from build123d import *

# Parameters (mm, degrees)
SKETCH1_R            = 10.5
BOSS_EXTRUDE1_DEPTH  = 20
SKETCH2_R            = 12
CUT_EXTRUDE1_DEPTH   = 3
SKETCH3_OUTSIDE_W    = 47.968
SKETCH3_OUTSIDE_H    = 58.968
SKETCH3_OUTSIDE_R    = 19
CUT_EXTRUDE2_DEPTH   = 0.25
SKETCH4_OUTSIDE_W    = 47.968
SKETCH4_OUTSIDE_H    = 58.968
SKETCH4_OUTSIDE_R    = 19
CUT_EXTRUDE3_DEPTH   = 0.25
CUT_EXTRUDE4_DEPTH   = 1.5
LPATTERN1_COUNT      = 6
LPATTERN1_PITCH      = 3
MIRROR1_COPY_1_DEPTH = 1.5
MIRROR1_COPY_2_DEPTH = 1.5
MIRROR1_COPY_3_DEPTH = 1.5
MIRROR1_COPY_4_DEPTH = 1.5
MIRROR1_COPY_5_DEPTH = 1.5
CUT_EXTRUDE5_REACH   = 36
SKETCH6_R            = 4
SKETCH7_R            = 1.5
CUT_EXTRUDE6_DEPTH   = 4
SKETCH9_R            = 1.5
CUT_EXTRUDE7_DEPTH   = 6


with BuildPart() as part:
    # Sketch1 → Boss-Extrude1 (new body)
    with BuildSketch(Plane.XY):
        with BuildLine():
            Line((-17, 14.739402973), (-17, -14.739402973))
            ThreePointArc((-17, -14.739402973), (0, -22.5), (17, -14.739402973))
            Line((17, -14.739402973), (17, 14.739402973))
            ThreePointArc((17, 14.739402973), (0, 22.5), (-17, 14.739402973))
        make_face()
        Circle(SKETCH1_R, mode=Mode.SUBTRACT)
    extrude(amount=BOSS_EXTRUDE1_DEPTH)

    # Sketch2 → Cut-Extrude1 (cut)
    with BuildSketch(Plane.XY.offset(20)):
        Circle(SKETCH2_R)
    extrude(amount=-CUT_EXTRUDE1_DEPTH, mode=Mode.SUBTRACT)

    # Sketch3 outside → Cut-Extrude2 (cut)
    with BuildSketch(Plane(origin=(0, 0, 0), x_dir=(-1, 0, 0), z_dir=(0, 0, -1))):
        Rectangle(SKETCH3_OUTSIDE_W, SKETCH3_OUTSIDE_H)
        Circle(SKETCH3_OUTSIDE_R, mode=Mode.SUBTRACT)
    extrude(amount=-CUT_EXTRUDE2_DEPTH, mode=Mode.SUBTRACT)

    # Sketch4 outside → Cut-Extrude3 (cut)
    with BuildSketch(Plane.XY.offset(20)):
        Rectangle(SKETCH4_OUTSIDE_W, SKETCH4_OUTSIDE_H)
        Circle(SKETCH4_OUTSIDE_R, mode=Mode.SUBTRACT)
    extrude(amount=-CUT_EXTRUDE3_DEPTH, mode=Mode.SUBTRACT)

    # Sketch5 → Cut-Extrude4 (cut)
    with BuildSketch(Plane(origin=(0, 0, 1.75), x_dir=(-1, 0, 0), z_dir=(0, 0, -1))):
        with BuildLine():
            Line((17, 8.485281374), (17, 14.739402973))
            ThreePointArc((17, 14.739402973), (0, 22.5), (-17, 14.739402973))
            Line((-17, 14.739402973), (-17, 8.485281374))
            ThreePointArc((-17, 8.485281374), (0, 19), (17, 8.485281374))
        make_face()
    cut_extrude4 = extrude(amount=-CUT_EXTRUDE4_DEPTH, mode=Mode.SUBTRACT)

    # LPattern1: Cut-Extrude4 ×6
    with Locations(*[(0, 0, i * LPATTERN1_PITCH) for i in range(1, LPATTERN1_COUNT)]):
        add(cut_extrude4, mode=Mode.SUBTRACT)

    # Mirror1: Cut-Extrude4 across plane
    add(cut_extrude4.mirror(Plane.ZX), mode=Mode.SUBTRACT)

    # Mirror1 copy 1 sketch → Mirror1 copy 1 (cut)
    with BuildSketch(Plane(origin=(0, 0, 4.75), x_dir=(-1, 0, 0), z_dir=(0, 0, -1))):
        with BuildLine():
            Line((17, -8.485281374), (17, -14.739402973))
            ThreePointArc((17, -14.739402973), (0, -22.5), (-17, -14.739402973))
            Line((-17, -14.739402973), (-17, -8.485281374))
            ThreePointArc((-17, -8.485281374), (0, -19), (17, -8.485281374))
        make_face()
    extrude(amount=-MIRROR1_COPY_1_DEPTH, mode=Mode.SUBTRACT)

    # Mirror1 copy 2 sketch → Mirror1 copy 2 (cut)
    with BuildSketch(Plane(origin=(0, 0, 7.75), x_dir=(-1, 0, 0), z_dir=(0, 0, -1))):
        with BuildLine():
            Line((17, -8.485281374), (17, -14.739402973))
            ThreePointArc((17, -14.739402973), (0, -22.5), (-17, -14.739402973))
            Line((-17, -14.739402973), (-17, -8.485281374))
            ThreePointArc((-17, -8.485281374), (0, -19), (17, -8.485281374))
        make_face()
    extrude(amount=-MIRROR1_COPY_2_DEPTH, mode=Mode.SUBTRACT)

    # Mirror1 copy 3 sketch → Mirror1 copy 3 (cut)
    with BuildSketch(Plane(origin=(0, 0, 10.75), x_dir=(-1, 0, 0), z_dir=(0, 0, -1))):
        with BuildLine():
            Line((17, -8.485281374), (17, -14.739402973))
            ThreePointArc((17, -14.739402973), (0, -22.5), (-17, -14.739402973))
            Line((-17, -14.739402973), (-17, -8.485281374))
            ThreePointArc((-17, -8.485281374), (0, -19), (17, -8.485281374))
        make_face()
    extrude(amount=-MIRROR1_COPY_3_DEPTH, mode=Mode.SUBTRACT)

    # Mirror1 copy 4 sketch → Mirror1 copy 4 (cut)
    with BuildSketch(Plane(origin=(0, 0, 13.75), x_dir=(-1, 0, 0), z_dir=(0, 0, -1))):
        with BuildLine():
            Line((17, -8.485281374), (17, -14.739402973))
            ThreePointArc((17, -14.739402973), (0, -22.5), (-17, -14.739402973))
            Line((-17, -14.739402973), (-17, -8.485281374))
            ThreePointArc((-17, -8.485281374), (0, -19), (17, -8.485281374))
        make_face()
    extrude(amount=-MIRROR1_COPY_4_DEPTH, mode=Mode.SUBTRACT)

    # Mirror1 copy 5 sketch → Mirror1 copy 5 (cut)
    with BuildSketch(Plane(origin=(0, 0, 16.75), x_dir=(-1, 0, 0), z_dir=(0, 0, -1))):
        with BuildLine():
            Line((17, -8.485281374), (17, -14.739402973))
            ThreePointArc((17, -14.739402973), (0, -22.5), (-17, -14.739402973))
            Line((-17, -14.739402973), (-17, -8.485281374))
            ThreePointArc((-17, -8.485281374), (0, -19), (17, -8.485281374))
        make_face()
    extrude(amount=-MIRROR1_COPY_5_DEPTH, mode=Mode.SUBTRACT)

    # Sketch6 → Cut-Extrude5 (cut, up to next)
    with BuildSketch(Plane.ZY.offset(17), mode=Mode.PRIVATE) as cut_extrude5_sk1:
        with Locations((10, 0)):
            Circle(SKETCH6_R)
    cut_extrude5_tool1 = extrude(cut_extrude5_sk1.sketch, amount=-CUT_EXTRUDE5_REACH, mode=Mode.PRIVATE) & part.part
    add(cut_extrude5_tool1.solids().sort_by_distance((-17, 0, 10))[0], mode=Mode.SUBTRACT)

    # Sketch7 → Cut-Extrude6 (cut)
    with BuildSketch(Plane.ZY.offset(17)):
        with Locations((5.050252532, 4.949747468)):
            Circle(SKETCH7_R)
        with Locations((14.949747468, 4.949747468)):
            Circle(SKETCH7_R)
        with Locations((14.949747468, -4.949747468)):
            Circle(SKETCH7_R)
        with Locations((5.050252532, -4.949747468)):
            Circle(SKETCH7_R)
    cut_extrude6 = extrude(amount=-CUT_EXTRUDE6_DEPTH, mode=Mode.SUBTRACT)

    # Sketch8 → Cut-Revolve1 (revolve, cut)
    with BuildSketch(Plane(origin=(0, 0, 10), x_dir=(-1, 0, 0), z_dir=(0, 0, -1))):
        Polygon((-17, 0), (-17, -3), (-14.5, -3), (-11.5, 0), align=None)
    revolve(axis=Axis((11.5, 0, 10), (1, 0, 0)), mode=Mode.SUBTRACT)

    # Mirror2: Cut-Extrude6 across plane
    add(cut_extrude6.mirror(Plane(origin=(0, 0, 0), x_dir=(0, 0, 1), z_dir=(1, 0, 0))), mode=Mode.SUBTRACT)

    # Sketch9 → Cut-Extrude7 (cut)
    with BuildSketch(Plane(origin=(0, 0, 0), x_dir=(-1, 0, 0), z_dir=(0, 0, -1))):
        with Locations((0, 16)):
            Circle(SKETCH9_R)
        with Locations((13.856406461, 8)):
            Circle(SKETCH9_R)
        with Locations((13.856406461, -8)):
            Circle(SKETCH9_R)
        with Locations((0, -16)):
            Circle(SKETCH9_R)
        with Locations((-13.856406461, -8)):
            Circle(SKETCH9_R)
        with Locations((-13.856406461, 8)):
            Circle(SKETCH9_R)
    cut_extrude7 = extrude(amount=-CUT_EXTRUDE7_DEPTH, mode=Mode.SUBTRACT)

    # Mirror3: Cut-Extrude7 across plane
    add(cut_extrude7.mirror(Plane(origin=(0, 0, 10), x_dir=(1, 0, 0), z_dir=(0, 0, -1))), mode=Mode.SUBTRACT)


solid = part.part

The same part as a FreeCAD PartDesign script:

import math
import FreeCAD as App
import Part
import Sketcher

V = App.Vector
Q = App.Units.Quantity

doc = App.newDocument("Part")
body = doc.addObject("PartDesign::Body", "Body")

# Sketch on XY plane
sketch1 = doc.addObject("Sketcher::SketchObject", "Sketch")
body.addObject(sketch1)
sketch1.AttachmentSupport = (doc.XY_Plane, [""])
sketch1.MapMode = "FlatFace"
sketch1.addGeometry(Part.LineSegment(V(-17, 15, 0), V(-17, -15, 0)), False)
sketch1.addGeometry(Part.ArcOfCircle(Part.Circle(V(0, 0, 0), V(0, 0, 1), 22), math.radians(-139), math.radians(-41)), False)
sketch1.addGeometry(Part.LineSegment(V(17, -15, 0), V(17, 15, 0)), False)
sketch1.addGeometry(Part.ArcOfCircle(Part.Circle(V(0, 0, 0), V(0, 0, 1), 22), math.radians(41), math.radians(139)), False)
sketch1.addGeometry(Part.Circle(V(0, 0, 0), V(0, 0, 1), 10), False)
sketch1.addConstraint(Sketcher.Constraint("Coincident", 0, 2, 1, 1))
sketch1.addConstraint(Sketcher.Constraint("Coincident", 1, 2, 2, 1))
sketch1.addConstraint(Sketcher.Constraint("Coincident", 2, 2, 3, 1))
sketch1.addConstraint(Sketcher.Constraint("Coincident", 3, 2, 0, 1))
sketch1.addConstraint(Sketcher.Constraint("Vertical", 0))
sketch1.addConstraint(Sketcher.Constraint("Vertical", 2))
sketch1.addConstraint(Sketcher.Constraint("Coincident", 1, 3, -1, 1))
sketch1.addConstraint(Sketcher.Constraint("Coincident", 3, 3, -1, 1))
sketch1.addConstraint(Sketcher.Constraint("Coincident", 4, 3, -1, 1))
sketch1.addConstraint(Sketcher.Constraint("Equal", 1, 3))
sketch1.addConstraint(Sketcher.Constraint("Horizontal", 0, 2, 1, 2))
sketch1.addConstraint(Sketcher.Constraint("Diameter", 4, 21.0))
sketch1.addConstraint(Sketcher.Constraint("Radius", 1, 22.5))
sketch1.addConstraint(Sketcher.Constraint("DistanceX", 0, 2, -1, 1, 17.0))
pad1 = doc.addObject("PartDesign::Pad", "Pad")
body.addObject(pad1)
pad1.Profile = sketch1
pad1.Length = 20

# Sketch on XY plane
sketch2 = doc.addObject("Sketcher::SketchObject", "Sketch001")
body.addObject(sketch2)
sketch2.AttachmentSupport = (doc.XY_Plane, [""])
sketch2.MapMode = "FlatFace"
sketch2.AttachmentOffset = App.Placement(V(0, 0, 20), App.Rotation())
sketch2.addGeometry(Part.Circle(V(0, 0, 0), V(0, 0, 1), 12), False)
sketch2.addConstraint(Sketcher.Constraint("Coincident", 0, 3, -1, 1))
sketch2.addConstraint(Sketcher.Constraint("Diameter", 0, 24.0))
pocket1 = doc.addObject("PartDesign::Pocket", "Pocket")
body.addObject(pocket1)
pocket1.Profile = sketch2
pocket1.Length = 3

# Sketch on XY plane
sketch3 = doc.addObject("Sketcher::SketchObject", "Sketch002")
body.addObject(sketch3)
sketch3.AttachmentSupport = (doc.XY_Plane, [""])
sketch3.MapMode = "FlatFace"
sketch3.addGeometry(Part.LineSegment(V(24, 29, 0), V(24, -29, 0)), False)
sketch3.addGeometry(Part.LineSegment(V(24, -29, 0), V(-24, -29, 0)), False)
sketch3.addGeometry(Part.LineSegment(V(-24, -29, 0), V(-24, 29, 0)), False)
sketch3.addGeometry(Part.LineSegment(V(-24, 29, 0), V(24, 29, 0)), False)
sketch3.addGeometry(Part.Circle(V(0, 0, 0), V(0, 0, 1), 19), False)
sketch3.addConstraint(Sketcher.Constraint("Coincident", 0, 2, 1, 1))
sketch3.addConstraint(Sketcher.Constraint("Coincident", 1, 2, 2, 1))
sketch3.addConstraint(Sketcher.Constraint("Coincident", 2, 2, 3, 1))
sketch3.addConstraint(Sketcher.Constraint("Coincident", 3, 2, 0, 1))
sketch3.addConstraint(Sketcher.Constraint("Vertical", 0))
sketch3.addConstraint(Sketcher.Constraint("Horizontal", 1))
sketch3.addConstraint(Sketcher.Constraint("Vertical", 2))
sketch3.addConstraint(Sketcher.Constraint("Horizontal", 3))
sketch3.addConstraint(Sketcher.Constraint("Coincident", 4, 3, -1, 1))
sketch3.addConstraint(Sketcher.Constraint("Symmetric", 0, 2, 2, 2, -1, 1))
sketch3.addConstraint(Sketcher.Constraint("Diameter", 4, 38.0))
sketch3.addConstraint(Sketcher.Constraint("DistanceX", 1, 2, 1, 1, 47.968))
sketch3.addConstraint(Sketcher.Constraint("DistanceY", 0, 2, 0, 1, 58.968))
pocket2 = doc.addObject("PartDesign::Pocket", "Pocket001")
body.addObject(pocket2)
pocket2.Profile = sketch3
pocket2.Length = 0.25
pocket2.Reversed = True

# Sketch on XY plane
sketch4 = doc.addObject("Sketcher::SketchObject", "Sketch003")
body.addObject(sketch4)
sketch4.AttachmentSupport = (doc.XY_Plane, [""])
sketch4.MapMode = "FlatFace"
sketch4.AttachmentOffset = App.Placement(V(0, 0, 20), App.Rotation())
sketch4.addGeometry(Part.LineSegment(V(-24, 29, 0), V(-24, -29, 0)), False)
sketch4.addGeometry(Part.LineSegment(V(-24, -29, 0), V(24, -29, 0)), False)
sketch4.addGeometry(Part.LineSegment(V(24, -29, 0), V(24, 29, 0)), False)
sketch4.addGeometry(Part.LineSegment(V(24, 29, 0), V(-24, 29, 0)), False)
sketch4.addGeometry(Part.Circle(V(0, 0, 0), V(0, 0, 1), 19), False)
sketch4.addConstraint(Sketcher.Constraint("Coincident", 0, 2, 1, 1))
sketch4.addConstraint(Sketcher.Constraint("Coincident", 1, 2, 2, 1))
sketch4.addConstraint(Sketcher.Constraint("Coincident", 2, 2, 3, 1))
sketch4.addConstraint(Sketcher.Constraint("Coincident", 3, 2, 0, 1))
sketch4.addConstraint(Sketcher.Constraint("Vertical", 0))
sketch4.addConstraint(Sketcher.Constraint("Horizontal", 1))
sketch4.addConstraint(Sketcher.Constraint("Vertical", 2))
sketch4.addConstraint(Sketcher.Constraint("Horizontal", 3))
sketch4.addConstraint(Sketcher.Constraint("Coincident", 4, 3, -1, 1))
sketch4.addConstraint(Sketcher.Constraint("Symmetric", 0, 2, 2, 2, -1, 1))
sketch4.addConstraint(Sketcher.Constraint("Diameter", 4, 38.0))
sketch4.addConstraint(Sketcher.Constraint("DistanceX", 1, 1, 1, 2, 47.968))
sketch4.addConstraint(Sketcher.Constraint("DistanceY", 0, 2, 0, 1, 58.968))
pocket3 = doc.addObject("PartDesign::Pocket", "Pocket002")
body.addObject(pocket3)
pocket3.Profile = sketch4
pocket3.Length = 0.25

# Sketch on XY plane
sketch5 = doc.addObject("Sketcher::SketchObject", "Sketch004")
body.addObject(sketch5)
sketch5.AttachmentSupport = (doc.XY_Plane, [""])
sketch5.MapMode = "FlatFace"
sketch5.AttachmentOffset = App.Placement(V(0, 0, 1.75), App.Rotation())
sketch5.addGeometry(Part.LineSegment(V(-17, 8, 0), V(-17, 15, 0)), False)
sketch5.addGeometry(Part.ArcOfCircle(Part.Circle(V(0, 0, 0), V(0, 0, 1), 22), math.radians(41), math.radians(139)), False)
sketch5.addGeometry(Part.LineSegment(V(17, 15, 0), V(17, 8, 0)), False)
sketch5.addGeometry(Part.ArcOfCircle(Part.Circle(V(0, 0, 0), V(0, 0, 1), 19), math.radians(27), math.radians(153)), False)
sketch5.addConstraint(Sketcher.Constraint("Coincident", 0, 2, 1, 2))
sketch5.addConstraint(Sketcher.Constraint("Coincident", 1, 1, 2, 1))
sketch5.addConstraint(Sketcher.Constraint("Coincident", 2, 2, 3, 1))
sketch5.addConstraint(Sketcher.Constraint("Coincident", 3, 2, 0, 1))
sketch5.addConstraint(Sketcher.Constraint("Vertical", 0))
sketch5.addConstraint(Sketcher.Constraint("Vertical", 2))
sketch5.addConstraint(Sketcher.Constraint("Coincident", 1, 3, -1, 1))
sketch5.addConstraint(Sketcher.Constraint("Coincident", 3, 3, -1, 1))
sketch5.addConstraint(Sketcher.Constraint("Horizontal", 0, 2, 1, 1))
sketch5.addConstraint(Sketcher.Constraint("Radius", 3, 19.0))
sketch5.addConstraint(Sketcher.Constraint("Radius", 1, 22.5))
sketch5.addConstraint(Sketcher.Constraint("DistanceX", 0, 2, -1, 1, 17.0))
pocket4 = doc.addObject("PartDesign::Pocket", "Pocket003")
body.addObject(pocket4)
pocket4.Profile = sketch5
pocket4.Length = 1.5
pocket4.Reversed = True
doc.recompute()

linearpattern = doc.addObject("PartDesign::LinearPattern", "LinearPattern")
body.addObject(linearpattern)
linearpattern.Originals = [pocket4]
linearpattern.Direction = (doc.Z_Axis, [""])
linearpattern.Mode = "offset"
linearpattern.Offset = 3
linearpattern.Occurrences = 6
body.Tip = linearpattern
doc.recompute()

mirrored = doc.addObject("PartDesign::Mirrored", "Mirrored")
body.addObject(mirrored)
mirrored.Originals = [pocket4]
mirrored.MirrorPlane = (doc.XZ_Plane, [""])
body.Tip = mirrored

# Sketch on XY plane
sketch6 = doc.addObject("Sketcher::SketchObject", "Sketch005")
body.addObject(sketch6)
sketch6.AttachmentSupport = (doc.XY_Plane, [""])
sketch6.MapMode = "FlatFace"
sketch6.AttachmentOffset = App.Placement(V(0, 0, 4.75), App.Rotation())
sketch6.addGeometry(Part.LineSegment(V(-17, -15, 0), V(-17, -8, 0)), False)
sketch6.addGeometry(Part.ArcOfCircle(Part.Circle(V(0, 0, 0), V(0, 0, 1), 19), math.radians(-153), math.radians(-27)), False)
sketch6.addGeometry(Part.LineSegment(V(17, -8, 0), V(17, -15, 0)), False)
sketch6.addGeometry(Part.ArcOfCircle(Part.Circle(V(0, 0, 0), V(0, 0, 1), 22), math.radians(-139), math.radians(-41)), False)
sketch6.addConstraint(Sketcher.Constraint("Coincident", 0, 2, 1, 1))
sketch6.addConstraint(Sketcher.Constraint("Coincident", 1, 2, 2, 1))
sketch6.addConstraint(Sketcher.Constraint("Coincident", 2, 2, 3, 2))
sketch6.addConstraint(Sketcher.Constraint("Coincident", 3, 1, 0, 1))
sketch6.addConstraint(Sketcher.Constraint("Vertical", 0))
sketch6.addConstraint(Sketcher.Constraint("Vertical", 2))
sketch6.addConstraint(Sketcher.Constraint("Coincident", 1, 3, -1, 1))
sketch6.addConstraint(Sketcher.Constraint("Coincident", 3, 3, -1, 1))
sketch6.addConstraint(Sketcher.Constraint("Horizontal", 0, 2, 1, 2))
sketch6.addConstraint(Sketcher.Constraint("Radius", 1, 19.0))
sketch6.addConstraint(Sketcher.Constraint("Radius", 3, 22.5))
sketch6.addConstraint(Sketcher.Constraint("DistanceX", 0, 2, -1, 1, 17.0))
pocket5 = doc.addObject("PartDesign::Pocket", "Pocket004")
body.addObject(pocket5)
pocket5.Profile = sketch6
pocket5.Length = 1.5
pocket5.Reversed = True

# Sketch on XY plane
sketch7 = doc.addObject("Sketcher::SketchObject", "Sketch006")
body.addObject(sketch7)
sketch7.AttachmentSupport = (doc.XY_Plane, [""])
sketch7.MapMode = "FlatFace"
sketch7.AttachmentOffset = App.Placement(V(0, 0, 7.75), App.Rotation())
sketch7.addGeometry(Part.LineSegment(V(-17, -15, 0), V(-17, -8, 0)), False)
sketch7.addGeometry(Part.ArcOfCircle(Part.Circle(V(0, 0, 0), V(0, 0, 1), 19), math.radians(-153), math.radians(-27)), False)
sketch7.addGeometry(Part.LineSegment(V(17, -8, 0), V(17, -15, 0)), False)
sketch7.addGeometry(Part.ArcOfCircle(Part.Circle(V(0, 0, 0), V(0, 0, 1), 22), math.radians(-139), math.radians(-41)), False)
sketch7.addConstraint(Sketcher.Constraint("Coincident", 0, 2, 1, 1))
sketch7.addConstraint(Sketcher.Constraint("Coincident", 1, 2, 2, 1))
sketch7.addConstraint(Sketcher.Constraint("Coincident", 2, 2, 3, 2))
sketch7.addConstraint(Sketcher.Constraint("Coincident", 3, 1, 0, 1))
sketch7.addConstraint(Sketcher.Constraint("Vertical", 0))
sketch7.addConstraint(Sketcher.Constraint("Vertical", 2))
sketch7.addConstraint(Sketcher.Constraint("Coincident", 1, 3, -1, 1))
sketch7.addConstraint(Sketcher.Constraint("Coincident", 3, 3, -1, 1))
sketch7.addConstraint(Sketcher.Constraint("Horizontal", 0, 2, 1, 2))
sketch7.addConstraint(Sketcher.Constraint("Radius", 1, 19.0))
sketch7.addConstraint(Sketcher.Constraint("Radius", 3, 22.5))
sketch7.addConstraint(Sketcher.Constraint("DistanceX", 0, 2, -1, 1, 17.0))
pocket6 = doc.addObject("PartDesign::Pocket", "Pocket005")
body.addObject(pocket6)
pocket6.Profile = sketch7
pocket6.Length = 1.5
pocket6.Reversed = True

# Sketch on XY plane
sketch8 = doc.addObject("Sketcher::SketchObject", "Sketch007")
body.addObject(sketch8)
sketch8.AttachmentSupport = (doc.XY_Plane, [""])
sketch8.MapMode = "FlatFace"
sketch8.AttachmentOffset = App.Placement(V(0, 0, 10.75), App.Rotation())
sketch8.addGeometry(Part.LineSegment(V(-17, -15, 0), V(-17, -8, 0)), False)
sketch8.addGeometry(Part.ArcOfCircle(Part.Circle(V(0, 0, 0), V(0, 0, 1), 19), math.radians(-153), math.radians(-27)), False)
sketch8.addGeometry(Part.LineSegment(V(17, -8, 0), V(17, -15, 0)), False)
sketch8.addGeometry(Part.ArcOfCircle(Part.Circle(V(0, 0, 0), V(0, 0, 1), 22), math.radians(-139), math.radians(-41)), False)
sketch8.addConstraint(Sketcher.Constraint("Coincident", 0, 2, 1, 1))
sketch8.addConstraint(Sketcher.Constraint("Coincident", 1, 2, 2, 1))
sketch8.addConstraint(Sketcher.Constraint("Coincident", 2, 2, 3, 2))
sketch8.addConstraint(Sketcher.Constraint("Coincident", 3, 1, 0, 1))
sketch8.addConstraint(Sketcher.Constraint("Vertical", 0))
sketch8.addConstraint(Sketcher.Constraint("Vertical", 2))
sketch8.addConstraint(Sketcher.Constraint("Coincident", 1, 3, -1, 1))
sketch8.addConstraint(Sketcher.Constraint("Coincident", 3, 3, -1, 1))
sketch8.addConstraint(Sketcher.Constraint("Horizontal", 0, 2, 1, 2))
sketch8.addConstraint(Sketcher.Constraint("Radius", 1, 19.0))
sketch8.addConstraint(Sketcher.Constraint("Radius", 3, 22.5))
sketch8.addConstraint(Sketcher.Constraint("DistanceX", 0, 2, -1, 1, 17.0))
pocket7 = doc.addObject("PartDesign::Pocket", "Pocket006")
body.addObject(pocket7)
pocket7.Profile = sketch8
pocket7.Length = 1.5
pocket7.Reversed = True

# Sketch on XY plane
sketch9 = doc.addObject("Sketcher::SketchObject", "Sketch008")
body.addObject(sketch9)
sketch9.AttachmentSupport = (doc.XY_Plane, [""])
sketch9.MapMode = "FlatFace"
sketch9.AttachmentOffset = App.Placement(V(0, 0, 13.75), App.Rotation())
sketch9.addGeometry(Part.LineSegment(V(-17, -15, 0), V(-17, -8, 0)), False)
sketch9.addGeometry(Part.ArcOfCircle(Part.Circle(V(0, 0, 0), V(0, 0, 1), 19), math.radians(-153), math.radians(-27)), False)
sketch9.addGeometry(Part.LineSegment(V(17, -8, 0), V(17, -15, 0)), False)
sketch9.addGeometry(Part.ArcOfCircle(Part.Circle(V(0, 0, 0), V(0, 0, 1), 22), math.radians(-139), math.radians(-41)), False)
sketch9.addConstraint(Sketcher.Constraint("Coincident", 0, 2, 1, 1))
sketch9.addConstraint(Sketcher.Constraint("Coincident", 1, 2, 2, 1))
sketch9.addConstraint(Sketcher.Constraint("Coincident", 2, 2, 3, 2))
sketch9.addConstraint(Sketcher.Constraint("Coincident", 3, 1, 0, 1))
sketch9.addConstraint(Sketcher.Constraint("Vertical", 0))
sketch9.addConstraint(Sketcher.Constraint("Vertical", 2))
sketch9.addConstraint(Sketcher.Constraint("Coincident", 1, 3, -1, 1))
sketch9.addConstraint(Sketcher.Constraint("Coincident", 3, 3, -1, 1))
sketch9.addConstraint(Sketcher.Constraint("Horizontal", 0, 2, 1, 2))
sketch9.addConstraint(Sketcher.Constraint("Radius", 1, 19.0))
sketch9.addConstraint(Sketcher.Constraint("Radius", 3, 22.5))
sketch9.addConstraint(Sketcher.Constraint("DistanceX", 0, 2, -1, 1, 17.0))
pocket8 = doc.addObject("PartDesign::Pocket", "Pocket007")
body.addObject(pocket8)
pocket8.Profile = sketch9
pocket8.Length = 1.5
pocket8.Reversed = True

# Sketch on XY plane
sketch10 = doc.addObject("Sketcher::SketchObject", "Sketch009")
body.addObject(sketch10)
sketch10.AttachmentSupport = (doc.XY_Plane, [""])
sketch10.MapMode = "FlatFace"
sketch10.AttachmentOffset = App.Placement(V(0, 0, 16.75), App.Rotation())
sketch10.addGeometry(Part.LineSegment(V(-17, -15, 0), V(-17, -8, 0)), False)
sketch10.addGeometry(Part.ArcOfCircle(Part.Circle(V(0, 0, 0), V(0, 0, 1), 19), math.radians(-153), math.radians(-27)), False)
sketch10.addGeometry(Part.LineSegment(V(17, -8, 0), V(17, -15, 0)), False)
sketch10.addGeometry(Part.ArcOfCircle(Part.Circle(V(0, 0, 0), V(0, 0, 1), 22), math.radians(-139), math.radians(-41)), False)
sketch10.addConstraint(Sketcher.Constraint("Coincident", 0, 2, 1, 1))
sketch10.addConstraint(Sketcher.Constraint("Coincident", 1, 2, 2, 1))
sketch10.addConstraint(Sketcher.Constraint("Coincident", 2, 2, 3, 2))
sketch10.addConstraint(Sketcher.Constraint("Coincident", 3, 1, 0, 1))
sketch10.addConstraint(Sketcher.Constraint("Vertical", 0))
sketch10.addConstraint(Sketcher.Constraint("Vertical", 2))
sketch10.addConstraint(Sketcher.Constraint("Coincident", 1, 3, -1, 1))
sketch10.addConstraint(Sketcher.Constraint("Coincident", 3, 3, -1, 1))
sketch10.addConstraint(Sketcher.Constraint("Horizontal", 0, 2, 1, 2))
sketch10.addConstraint(Sketcher.Constraint("Radius", 1, 19.0))
sketch10.addConstraint(Sketcher.Constraint("Radius", 3, 22.5))
sketch10.addConstraint(Sketcher.Constraint("DistanceX", 0, 2, -1, 1, 17.0))
pocket9 = doc.addObject("PartDesign::Pocket", "Pocket008")
body.addObject(pocket9)
pocket9.Profile = sketch10
pocket9.Length = 1.5
pocket9.Reversed = True

# Sketch on YZ plane
sketch11 = doc.addObject("Sketcher::SketchObject", "Sketch010")
body.addObject(sketch11)
sketch11.AttachmentSupport = (doc.YZ_Plane, [""])
sketch11.MapMode = "FlatFace"
sketch11.AttachmentOffset = App.Placement(V(0, 0, -17), App.Rotation())
sketch11.addGeometry(Part.Circle(V(0, 10, 0), V(0, 0, 1), 4), False)
sketch11.addConstraint(Sketcher.Constraint("PointOnObject", 0, 3, -2))
sketch11.addConstraint(Sketcher.Constraint("Diameter", 0, 8.0))
sketch11.addConstraint(Sketcher.Constraint("DistanceY", -1, 1, 0, 3, 10.0))
pocket10 = doc.addObject("PartDesign::Pocket", "Pocket009")
body.addObject(pocket10)
pocket10.Profile = sketch11
pocket10.Type = "UpToFirst"
pocket10.Reversed = True

# Sketch on YZ plane
sketch12 = doc.addObject("Sketcher::SketchObject", "Sketch011")
body.addObject(sketch12)
sketch12.AttachmentSupport = (doc.YZ_Plane, [""])
sketch12.MapMode = "FlatFace"
sketch12.AttachmentOffset = App.Placement(V(0, 0, -17), App.Rotation())
sketch12.addGeometry(Part.Circle(V(4.9, 5.1, 0), V(0, 0, 1), 1.5), False)
sketch12.addGeometry(Part.Circle(V(4.9, 14.9, 0), V(0, 0, 1), 1.5), False)
sketch12.addGeometry(Part.Circle(V(-4.9, 14.9, 0), V(0, 0, 1), 1.5), False)
sketch12.addGeometry(Part.Circle(V(-4.9, 5.1, 0), V(0, 0, 1), 1.5), False)
sketch12.addConstraint(Sketcher.Constraint("Equal", 0, 1))
sketch12.addConstraint(Sketcher.Constraint("Equal", 1, 2))
sketch12.addConstraint(Sketcher.Constraint("Equal", 2, 3))
sketch12.addConstraint(Sketcher.Constraint("Symmetric", 1, 3, 2, 3, -2))
sketch12.addConstraint(Sketcher.Constraint("Symmetric", 0, 3, 3, 3, -2))
sketch12.addConstraint(Sketcher.Constraint("Vertical", 0, 3, 1, 3))
sketch12.addConstraint(Sketcher.Constraint("Diameter", 0, 3.0))
sketch12.addConstraint(Sketcher.Constraint("DistanceX", -1, 1, 0, 3, 4.949747))
sketch12.addConstraint(Sketcher.Constraint("DistanceY", -1, 1, 0, 3, 5.050253))
sketch12.addConstraint(Sketcher.Constraint("DistanceY", -1, 1, 1, 3, 14.949747))
pocket11 = doc.addObject("PartDesign::Pocket", "Pocket010")
body.addObject(pocket11)
pocket11.Profile = sketch12
pocket11.Length = 4
pocket11.Reversed = True

# Sketch on XY plane
sketch13 = doc.addObject("Sketcher::SketchObject", "Sketch012")
body.addObject(sketch13)
sketch13.AttachmentSupport = (doc.XY_Plane, [""])
sketch13.MapMode = "FlatFace"
sketch13.AttachmentOffset = App.Placement(V(0, 0, 10), App.Rotation())
sketch13.addGeometry(Part.LineSegment(V(17, 0, 0), V(17, -3, 0)), False)
sketch13.addGeometry(Part.LineSegment(V(17, -3, 0), V(14.5, -3, 0)), False)
sketch13.addGeometry(Part.LineSegment(V(14.5, -3, 0), V(11.5, 0, 0)), False)
sketch13.addGeometry(Part.LineSegment(V(11.5, 0, 0), V(17, 0, 0)), False)
sketch13.addConstraint(Sketcher.Constraint("Coincident", 0, 2, 1, 1))
sketch13.addConstraint(Sketcher.Constraint("Coincident", 1, 2, 2, 1))
sketch13.addConstraint(Sketcher.Constraint("Coincident", 2, 2, 3, 1))
sketch13.addConstraint(Sketcher.Constraint("Coincident", 3, 2, 0, 1))
sketch13.addConstraint(Sketcher.Constraint("Vertical", 0))
sketch13.addConstraint(Sketcher.Constraint("Horizontal", 1))
sketch13.addConstraint(Sketcher.Constraint("Horizontal", 3))
sketch13.addConstraint(Sketcher.Constraint("PointOnObject", 2, 2, -1))
sketch13.addConstraint(Sketcher.Constraint("DistanceY", 0, 2, 0, 1, 3.0))
sketch13.addConstraint(Sketcher.Constraint("Angle", 2, Q("135 deg")))
sketch13.addConstraint(Sketcher.Constraint("DistanceX", 1, 2, 1, 1, 2.5))
sketch13.addConstraint(Sketcher.Constraint("DistanceX", -1, 1, 0, 2, 17.0))
groove = doc.addObject("PartDesign::Groove", "Groove")
body.addObject(groove)
groove.Profile = sketch13
groove.ReferenceAxis = (sketch13, ["H_Axis"])
groove.Angle = 360
doc.recompute()

mirrored2 = doc.addObject("PartDesign::Mirrored", "Mirrored001")
body.addObject(mirrored2)
mirrored2.Originals = [pocket11]
mirrored2.MirrorPlane = (doc.YZ_Plane, [""])
body.Tip = mirrored2

# Sketch on XY plane
sketch14 = doc.addObject("Sketcher::SketchObject", "Sketch013")
body.addObject(sketch14)
sketch14.AttachmentSupport = (doc.XY_Plane, [""])
sketch14.MapMode = "FlatFace"
sketch14.addGeometry(Part.Circle(V(0, 16, 0), V(0, 0, 1), 1.5), False)
sketch14.addGeometry(Part.Circle(V(-13.9, 8, 0), V(0, 0, 1), 1.5), False)
sketch14.addGeometry(Part.Circle(V(-13.9, -8, 0), V(0, 0, 1), 1.5), False)
sketch14.addGeometry(Part.Circle(V(0, -16, 0), V(0, 0, 1), 1.5), False)
sketch14.addGeometry(Part.Circle(V(13.9, -8, 0), V(0, 0, 1), 1.5), False)
sketch14.addGeometry(Part.Circle(V(13.9, 8, 0), V(0, 0, 1), 1.5), False)
sketch14.addConstraint(Sketcher.Constraint("Equal", 0, 1))
sketch14.addConstraint(Sketcher.Constraint("Equal", 1, 2))
sketch14.addConstraint(Sketcher.Constraint("Equal", 2, 3))
sketch14.addConstraint(Sketcher.Constraint("Equal", 3, 4))
sketch14.addConstraint(Sketcher.Constraint("Equal", 4, 5))
sketch14.addConstraint(Sketcher.Constraint("Symmetric", 0, 3, 3, 3, -1, 1))
sketch14.addConstraint(Sketcher.Constraint("Symmetric", 1, 3, 4, 3, -1, 1))
sketch14.addConstraint(Sketcher.Constraint("Symmetric", 2, 3, 5, 3, -1, 1))
sketch14.addConstraint(Sketcher.Constraint("Symmetric", 2, 3, 4, 3, -2))
sketch14.addConstraint(Sketcher.Constraint("PointOnObject", 0, 3, -2))
sketch14.addConstraint(Sketcher.Constraint("Diameter", 0, 3.0))
sketch14.addConstraint(Sketcher.Constraint("DistanceY", -1, 1, 0, 3, 16.0))
sketch14.addConstraint(Sketcher.Constraint("DistanceY", -1, 1, 1, 3, 8.0))
sketch14.addConstraint(Sketcher.Constraint("DistanceX", 1, 3, -1, 1, 13.856406))
pocket12 = doc.addObject("PartDesign::Pocket", "Pocket011")
body.addObject(pocket12)
pocket12.Profile = sketch14
pocket12.Length = 6
pocket12.Reversed = True
doc.recompute()

datumplane = doc.addObject("PartDesign::Plane", "DatumPlane")
body.addObject(datumplane)
datumplane.AttachmentSupport = (doc.XY_Plane, [""])
datumplane.MapMode = "FlatFace"
datumplane.AttachmentOffset = App.Placement(V(0, 0, 10), App.Rotation())
mirrored3 = doc.addObject("PartDesign::Mirrored", "Mirrored002")
body.addObject(mirrored3)
mirrored3.Originals = [pocket12]
mirrored3.MirrorPlane = (datumplane, [""])
body.Tip = mirrored3

doc.recompute()
